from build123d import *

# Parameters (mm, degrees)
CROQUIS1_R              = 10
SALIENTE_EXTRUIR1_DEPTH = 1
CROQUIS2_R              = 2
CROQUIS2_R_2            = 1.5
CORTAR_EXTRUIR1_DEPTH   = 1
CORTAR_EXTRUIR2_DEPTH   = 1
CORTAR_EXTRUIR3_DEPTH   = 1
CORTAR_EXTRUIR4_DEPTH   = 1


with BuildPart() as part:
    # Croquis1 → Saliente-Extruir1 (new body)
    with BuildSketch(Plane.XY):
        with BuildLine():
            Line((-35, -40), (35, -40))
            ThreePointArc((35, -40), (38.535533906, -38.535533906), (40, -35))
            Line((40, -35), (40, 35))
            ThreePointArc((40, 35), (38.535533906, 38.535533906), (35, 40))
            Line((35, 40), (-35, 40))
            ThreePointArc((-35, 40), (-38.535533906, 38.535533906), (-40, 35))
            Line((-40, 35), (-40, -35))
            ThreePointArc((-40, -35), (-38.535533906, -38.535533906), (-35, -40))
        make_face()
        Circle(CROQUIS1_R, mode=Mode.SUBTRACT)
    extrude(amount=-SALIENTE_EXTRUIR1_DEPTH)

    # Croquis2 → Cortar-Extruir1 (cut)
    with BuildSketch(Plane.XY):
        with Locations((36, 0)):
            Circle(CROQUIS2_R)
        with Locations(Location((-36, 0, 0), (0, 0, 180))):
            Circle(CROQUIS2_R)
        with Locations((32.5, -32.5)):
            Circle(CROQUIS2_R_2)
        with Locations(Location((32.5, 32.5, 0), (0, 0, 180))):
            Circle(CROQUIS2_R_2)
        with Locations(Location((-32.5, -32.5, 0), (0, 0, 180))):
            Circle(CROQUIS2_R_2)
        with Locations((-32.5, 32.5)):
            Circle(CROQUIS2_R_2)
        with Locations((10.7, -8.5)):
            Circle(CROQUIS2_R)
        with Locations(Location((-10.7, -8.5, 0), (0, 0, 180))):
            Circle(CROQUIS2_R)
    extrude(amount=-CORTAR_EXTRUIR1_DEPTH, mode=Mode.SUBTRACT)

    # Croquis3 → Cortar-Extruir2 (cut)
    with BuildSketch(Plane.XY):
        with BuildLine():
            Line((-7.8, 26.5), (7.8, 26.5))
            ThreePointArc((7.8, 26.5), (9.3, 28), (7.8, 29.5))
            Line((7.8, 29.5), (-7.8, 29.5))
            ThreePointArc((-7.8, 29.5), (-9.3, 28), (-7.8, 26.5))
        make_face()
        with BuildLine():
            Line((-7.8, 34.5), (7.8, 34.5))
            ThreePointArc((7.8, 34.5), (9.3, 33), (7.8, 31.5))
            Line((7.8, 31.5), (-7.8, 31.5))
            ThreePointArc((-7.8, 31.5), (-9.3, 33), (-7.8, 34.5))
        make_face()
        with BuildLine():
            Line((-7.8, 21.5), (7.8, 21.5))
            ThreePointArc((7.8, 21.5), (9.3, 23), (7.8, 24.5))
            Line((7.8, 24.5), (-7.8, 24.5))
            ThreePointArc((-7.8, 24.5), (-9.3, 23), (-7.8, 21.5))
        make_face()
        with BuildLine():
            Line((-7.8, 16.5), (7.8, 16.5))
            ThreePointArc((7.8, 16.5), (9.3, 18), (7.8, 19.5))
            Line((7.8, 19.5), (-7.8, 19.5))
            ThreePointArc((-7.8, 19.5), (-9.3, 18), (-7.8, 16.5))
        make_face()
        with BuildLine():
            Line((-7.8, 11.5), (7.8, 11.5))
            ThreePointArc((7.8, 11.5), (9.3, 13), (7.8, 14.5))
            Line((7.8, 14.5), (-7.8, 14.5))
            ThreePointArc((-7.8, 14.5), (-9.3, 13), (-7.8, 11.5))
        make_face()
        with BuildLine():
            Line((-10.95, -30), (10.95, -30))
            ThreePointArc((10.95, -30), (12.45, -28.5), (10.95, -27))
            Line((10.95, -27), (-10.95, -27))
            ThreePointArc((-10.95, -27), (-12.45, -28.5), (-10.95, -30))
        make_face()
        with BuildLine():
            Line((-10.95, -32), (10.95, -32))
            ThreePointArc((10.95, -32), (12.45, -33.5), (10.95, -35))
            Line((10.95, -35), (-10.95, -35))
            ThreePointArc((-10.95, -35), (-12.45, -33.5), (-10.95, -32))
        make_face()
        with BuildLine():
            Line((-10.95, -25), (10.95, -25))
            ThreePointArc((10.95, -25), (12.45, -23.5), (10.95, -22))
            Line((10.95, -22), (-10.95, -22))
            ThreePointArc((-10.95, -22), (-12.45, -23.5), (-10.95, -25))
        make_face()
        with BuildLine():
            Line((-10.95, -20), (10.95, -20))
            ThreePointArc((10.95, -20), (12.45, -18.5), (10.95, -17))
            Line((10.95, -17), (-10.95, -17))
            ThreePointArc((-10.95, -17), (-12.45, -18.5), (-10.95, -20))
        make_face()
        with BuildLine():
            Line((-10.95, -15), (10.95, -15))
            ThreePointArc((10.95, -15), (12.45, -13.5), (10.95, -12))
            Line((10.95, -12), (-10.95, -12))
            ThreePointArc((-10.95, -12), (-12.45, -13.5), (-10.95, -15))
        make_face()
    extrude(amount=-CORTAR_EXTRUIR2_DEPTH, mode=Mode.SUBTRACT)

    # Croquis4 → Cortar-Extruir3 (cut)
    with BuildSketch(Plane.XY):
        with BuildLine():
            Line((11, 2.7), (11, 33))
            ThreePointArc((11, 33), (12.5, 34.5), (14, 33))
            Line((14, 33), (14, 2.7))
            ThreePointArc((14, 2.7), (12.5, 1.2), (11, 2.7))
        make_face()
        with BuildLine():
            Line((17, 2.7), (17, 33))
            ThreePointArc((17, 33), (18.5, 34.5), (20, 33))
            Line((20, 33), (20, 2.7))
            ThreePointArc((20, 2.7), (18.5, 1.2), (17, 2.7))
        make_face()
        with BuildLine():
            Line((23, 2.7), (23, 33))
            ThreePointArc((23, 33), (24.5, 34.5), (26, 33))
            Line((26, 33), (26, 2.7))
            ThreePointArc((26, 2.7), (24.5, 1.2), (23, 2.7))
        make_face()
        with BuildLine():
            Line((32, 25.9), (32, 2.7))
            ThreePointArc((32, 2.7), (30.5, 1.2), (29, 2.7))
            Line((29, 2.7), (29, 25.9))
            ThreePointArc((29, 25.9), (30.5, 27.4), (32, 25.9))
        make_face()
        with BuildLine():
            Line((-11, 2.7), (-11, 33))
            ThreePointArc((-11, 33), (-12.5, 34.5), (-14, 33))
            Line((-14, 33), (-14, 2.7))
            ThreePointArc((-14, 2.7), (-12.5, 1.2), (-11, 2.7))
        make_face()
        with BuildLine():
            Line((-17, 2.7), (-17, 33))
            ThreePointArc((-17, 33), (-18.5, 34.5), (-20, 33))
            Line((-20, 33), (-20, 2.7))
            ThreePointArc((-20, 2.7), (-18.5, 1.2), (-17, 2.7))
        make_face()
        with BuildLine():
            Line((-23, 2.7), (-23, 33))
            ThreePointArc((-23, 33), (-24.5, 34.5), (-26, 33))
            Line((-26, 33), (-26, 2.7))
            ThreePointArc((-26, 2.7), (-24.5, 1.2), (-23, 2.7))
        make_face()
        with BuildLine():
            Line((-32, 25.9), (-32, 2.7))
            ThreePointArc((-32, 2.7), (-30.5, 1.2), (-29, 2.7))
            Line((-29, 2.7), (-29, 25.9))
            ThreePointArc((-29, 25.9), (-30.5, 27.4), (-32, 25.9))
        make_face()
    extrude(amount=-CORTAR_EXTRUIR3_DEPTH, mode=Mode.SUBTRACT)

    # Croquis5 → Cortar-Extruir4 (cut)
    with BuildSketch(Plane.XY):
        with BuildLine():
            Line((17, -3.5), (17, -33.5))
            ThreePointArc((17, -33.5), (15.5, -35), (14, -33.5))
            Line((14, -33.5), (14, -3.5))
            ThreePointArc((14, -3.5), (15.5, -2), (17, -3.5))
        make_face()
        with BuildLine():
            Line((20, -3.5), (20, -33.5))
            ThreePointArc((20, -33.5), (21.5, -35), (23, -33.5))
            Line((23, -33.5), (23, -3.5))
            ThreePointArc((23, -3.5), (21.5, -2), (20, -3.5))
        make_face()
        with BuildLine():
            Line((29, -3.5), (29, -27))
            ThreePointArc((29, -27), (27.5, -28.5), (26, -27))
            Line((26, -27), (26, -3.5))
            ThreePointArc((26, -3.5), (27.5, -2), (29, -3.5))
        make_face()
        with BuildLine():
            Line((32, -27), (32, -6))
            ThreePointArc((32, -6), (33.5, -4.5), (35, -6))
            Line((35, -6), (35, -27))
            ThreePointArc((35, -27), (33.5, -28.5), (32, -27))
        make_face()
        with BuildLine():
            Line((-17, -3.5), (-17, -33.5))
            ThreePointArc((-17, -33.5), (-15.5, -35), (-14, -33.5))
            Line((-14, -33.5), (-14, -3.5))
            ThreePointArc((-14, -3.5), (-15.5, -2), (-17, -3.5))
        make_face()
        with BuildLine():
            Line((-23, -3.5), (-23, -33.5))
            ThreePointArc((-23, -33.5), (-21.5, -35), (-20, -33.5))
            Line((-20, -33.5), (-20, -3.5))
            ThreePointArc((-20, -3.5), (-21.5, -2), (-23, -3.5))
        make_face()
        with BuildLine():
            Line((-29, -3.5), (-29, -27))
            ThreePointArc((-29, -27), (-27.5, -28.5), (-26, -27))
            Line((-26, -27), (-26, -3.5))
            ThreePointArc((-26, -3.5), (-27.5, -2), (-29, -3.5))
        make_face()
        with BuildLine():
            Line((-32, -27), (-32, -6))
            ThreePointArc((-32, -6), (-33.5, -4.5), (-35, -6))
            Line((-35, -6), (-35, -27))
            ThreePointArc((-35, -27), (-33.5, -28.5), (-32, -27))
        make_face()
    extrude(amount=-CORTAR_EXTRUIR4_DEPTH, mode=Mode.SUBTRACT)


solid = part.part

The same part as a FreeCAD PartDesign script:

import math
import FreeCAD as App
import Part
import Sketcher

V = App.Vector

doc = App.newDocument("Part")
body = doc.addObject("PartDesign::Body", "Body")

# Sketch on XY plane
sketch1 = body.newObject("Sketcher::SketchObject", "Sketch")
sketch1.AttachmentSupport = (doc.getObject("XY_Plane"), [""])
sketch1.MapMode = "FlatFace"
sketch1.addGeometry(Part.LineSegment(V(-35, -40, 0), V(35, -40, 0)), False)
sketch1.addGeometry(Part.ArcOfCircle(Part.Circle(V(35, -35, 0), V(0, 0, 1), 5), math.radians(-90), math.radians(0)), False)
sketch1.addGeometry(Part.LineSegment(V(40, -35, 0), V(40, 35, 0)), False)
sketch1.addGeometry(Part.ArcOfCircle(Part.Circle(V(35, 35, 0), V(0, 0, 1), 5), math.radians(0), math.radians(90)), False)
sketch1.addGeometry(Part.LineSegment(V(35, 40, 0), V(-35, 40, 0)), False)
sketch1.addGeometry(Part.ArcOfCircle(Part.Circle(V(-35, 35, 0), V(0, 0, 1), 5), math.radians(90), math.radians(180)), False)
sketch1.addGeometry(Part.LineSegment(V(-40, 35, 0), V(-40, -35, 0)), False)
sketch1.addGeometry(Part.ArcOfCircle(Part.Circle(V(-35, -35, 0), V(0, 0, 1), 5), math.radians(180), math.radians(270)), False)
sketch1.addGeometry(Part.Circle(V(0, 0, 0), V(0, 0, 1), 10), False)
sketch1.addConstraint(Sketcher.Constraint("Tangent", 0, 2, 1, 1))
sketch1.addConstraint(Sketcher.Constraint("Tangent", 1, 2, 2, 1))
sketch1.addConstraint(Sketcher.Constraint("Tangent", 2, 2, 3, 1))
sketch1.addConstraint(Sketcher.Constraint("Tangent", 3, 2, 4, 1))
sketch1.addConstraint(Sketcher.Constraint("Tangent", 4, 2, 5, 1))
sketch1.addConstraint(Sketcher.Constraint("Tangent", 5, 2, 6, 1))
sketch1.addConstraint(Sketcher.Constraint("Tangent", 6, 2, 7, 1))
sketch1.addConstraint(Sketcher.Constraint("Tangent", 7, 2, 0, 1))
sketch1.addConstraint(Sketcher.Constraint("Horizontal", 0))
sketch1.addConstraint(Sketcher.Constraint("Vertical", 2))
sketch1.addConstraint(Sketcher.Constraint("Horizontal", 4))
sketch1.addConstraint(Sketcher.Constraint("Vertical", 6))
sketch1.addConstraint(Sketcher.Constraint("Coincident", 8, 3, -1, 1))
sketch1.addConstraint(Sketcher.Constraint("Equal", 1, 3))
sketch1.addConstraint(Sketcher.Constraint("Equal", 3, 5))
sketch1.addConstraint(Sketcher.Constraint("Equal", 5, 7))
sketch1.addConstraint(Sketcher.Constraint("Symmetric", 1, 3, 5, 3, -1, 1))
sketch1.addConstraint(Sketcher.Constraint("Equal", 4, 2))
sketch1.addConstraint(Sketcher.Constraint("Diameter", 8, 20.0))
sketch1.addConstraint(Sketcher.Constraint("Radius", 1, 5.0))
sketch1.addConstraint(Sketcher.Constraint("DistanceX", 0, 1, 0, 2, 70.0))
pad1 = body.newObject("PartDesign::Pad", "Pad")
pad1.Profile = sketch1
pad1.Length = 1
pad1.Reversed = True

# Sketch on XY plane
sketch2 = body.newObject("Sketcher::SketchObject", "Sketch001")
sketch2.AttachmentSupport = (doc.getObject("XY_Plane"), [""])
sketch2.MapMode = "FlatFace"
sketch2.addGeometry(Part.Circle(V(36, 0, 0), V(0, 0, 1), 2), False)
sketch2.addGeometry(Part.Circle(V(-36, 0, 0), V(0, 0, 1), 2), False)
sketch2.addGeometry(Part.Circle(V(32.5, -32.5, 0), V(0, 0, 1), 1.5), False)
sketch2.addGeometry(Part.Circle(V(32.5, 32.5, 0), V(0, 0, 1), 1.5), False)
sketch2.addGeometry(Part.Circle(V(-32.5, -32.5, 0), V(0, 0, 1), 1.5), False)
sketch2.addGeometry(Part.Circle(V(-32.5, 32.5, 0), V(0, 0, 1), 1.5), False)
sketch2.addGeometry(Part.Circle(V(10.7, -8.5, 0), V(0, 0, 1), 2), False)
sketch2.addGeometry(Part.Circle(V(-10.7, -8.5, 0), V(0, 0, 1), 2), False)
sketch2.addConstraint(Sketcher.Constraint("Equal", 0, 1))
sketch2.addConstraint(Sketcher.Constraint("Equal", 2, 3))
sketch2.addConstraint(Sketcher.Constraint("Equal", 3, 4))
sketch2.addConstraint(Sketcher.Constraint("Equal", 4, 5))
sketch2.addConstraint(Sketcher.Constraint("Equal", 1, 6))
sketch2.addConstraint(Sketcher.Constraint("Equal", 6, 7))
sketch2.addConstraint(Sketcher.Constraint("Symmetric", 0, 3, 1, 3, -1, 1))
sketch2.addConstraint(Sketcher.Constraint("Symmetric", 3, 3, 4, 3, -1, 1))
sketch2.addConstraint(Sketcher.Constraint("Symmetric", 2, 3, 5, 3, -1, 1))
sketch2.addConstraint(Sketcher.Constraint("Symmetric", 2, 3, 4, 3, -2))
sketch2.addConstraint(Sketcher.Constraint("Symmetric", 6, 3, 7, 3, -2))
sketch2.addConstraint(Sketcher.Constraint("PointOnObject", 0, 3, -1))
sketch2.addConstraint(Sketcher.Constraint("Diameter", 0, 4.0))
sketch2.addConstraint(Sketcher.Constraint("Diameter", 2, 3.0))
sketch2.addConstraint(Sketcher.Constraint("DistanceX", -1, 1, 0, 3, 36.0))
sketch2.addConstraint(Sketcher.Constraint("DistanceY", 2, 3, 3, 3, 65.0))
sketch2.addConstraint(Sketcher.Constraint("DistanceX", 4, 3, 2, 3, 65.0))
sketch2.addConstraint(Sketcher.Constraint("DistanceY", 2, 3, 6, 3, 24.0))
sketch2.addConstraint(Sketcher.Constraint("DistanceX", -1, 1, 6, 3, 10.7))
pocket1 = body.newObject("PartDesign::Pocket", "Pocket")
pocket1.Profile = sketch2
pocket1.Length = 1

# Sketch on XY plane
sketch3 = body.newObject("Sketcher::SketchObject", "Sketch002")
sketch3.AttachmentSupport = (doc.getObject("XY_Plane"), [""])
sketch3.MapMode = "FlatFace"
sketch3.addGeometry(Part.LineSegment(V(-7.8, 26.5, 0), V(7.8, 26.5, 0)), False)
sketch3.addGeometry(Part.ArcOfCircle(Part.Circle(V(7.8, 28, 0), V(0, 0, 1), 1.5), math.radians(-90), math.radians(90)), False)
sketch3.addGeometry(Part.LineSegment(V(7.8, 29.5, 0), V(-7.8, 29.5, 0)), False)
sketch3.addGeometry(Part.ArcOfCircle(Part.Circle(V(-7.8, 28, 0), V(0, 0, 1), 1.5), math.radians(90), math.radians(270)), False)
sketch3.addGeometry(Part.LineSegment(V(7.8, 34.5, 0), V(-7.8, 34.5, 0)), False)
sketch3.addGeometry(Part.ArcOfCircle(Part.Circle(V(-7.8, 33, 0), V(0, 0, 1), 1.5), math.radians(90), math.radians(270)), False)
sketch3.addGeometry(Part.LineSegment(V(-7.8, 31.5, 0), V(7.8, 31.5, 0)), False)
sketch3.addGeometry(Part.ArcOfCircle(Part.Circle(V(7.8, 33, 0), V(0, 0, 1), 1.5), math.radians(-90), math.radians(90)), False)
sketch3.addGeometry(Part.LineSegment(V(-7.8, 21.5, 0), V(7.8, 21.5, 0)), False)
sketch3.addGeometry(Part.ArcOfCircle(Part.Circle(V(7.8, 23, 0), V(0, 0, 1), 1.5), math.radians(-90), math.radians(90)), False)
sketch3.addGeometry(Part.LineSegment(V(7.8, 24.5, 0), V(-7.8, 24.5, 0)), False)
sketch3.addGeometry(Part.ArcOfCircle(Part.Circle(V(-7.8, 23, 0), V(0, 0, 1), 1.5), math.radians(90), math.radians(270)), False)
sketch3.addGeometry(Part.LineSegment(V(-7.8, 16.5, 0), V(7.8, 16.5, 0)), False)
sketch3.addGeometry(Part.ArcOfCircle(Part.Circle(V(7.8, 18, 0), V(0, 0, 1), 1.5), math.radians(-90), math.radians(90)), False)
sketch3.addGeometry(Part.LineSegment(V(7.8, 19.5, 0), V(-7.8, 19.5, 0)), False)
sketch3.addGeometry(Part.ArcOfCircle(Part.Circle(V(-7.8, 18, 0), V(0, 0, 1), 1.5), math.radians(90), math.radians(270)), False)
sketch3.addGeometry(Part.LineSegment(V(-7.8, 11.5, 0), V(7.8, 11.5, 0)), False)
sketch3.addGeometry(Part.ArcOfCircle(Part.Circle(V(7.8, 13, 0), V(0, 0, 1), 1.5), math.radians(-90), math.radians(90)), False)
sketch3.addGeometry(Part.LineSegment(V(7.8, 14.5, 0), V(-7.8, 14.5, 0)), False)
sketch3.addGeometry(Part.ArcOfCircle(Part.Circle(V(-7.8, 13, 0), V(0, 0, 1), 1.5), math.radians(90), math.radians(270)), False)
sketch3.addGeometry(Part.LineSegment(V(-10.9, -30, 0), V(10.9, -30, 0)), False)
sketch3.addGeometry(Part.ArcOfCircle(Part.Circle(V(10.9, -28.5, 0), V(0, 0, 1), 1.5), math.radians(-90), math.radians(90)), False)
sketch3.addGeometry(Part.LineSegment(V(10.9, -27, 0), V(-10.9, -27, 0)), False)
sketch3.addGeometry(Part.ArcOfCircle(Part.Circle(V(-10.9, -28.5, 0), V(0, 0, 1), 1.5), math.radians(90), math.radians(270)), False)
sketch3.addGeometry(Part.LineSegment(V(10.9, -32, 0), V(-10.9, -32, 0)), False)
sketch3.addGeometry(Part.ArcOfCircle(Part.Circle(V(-10.9, -33.5, 0), V(0, 0, 1), 1.5), math.radians(90), math.radians(270)), False)
sketch3.addGeometry(Part.LineSegment(V(-10.9, -35, 0), V(10.9, -35, 0)), False)
sketch3.addGeometry(Part.ArcOfCircle(Part.Circle(V(10.9, -33.5, 0), V(0, 0, 1), 1.5), math.radians(-90), math.radians(90)), False)
sketch3.addGeometry(Part.LineSegment(V(-10.9, -25, 0), V(10.9, -25, 0)), False)
sketch3.addGeometry(Part.ArcOfCircle(Part.Circle(V(10.9, -23.5, 0), V(0, 0, 1), 1.5), math.radians(-90), math.radians(90)), False)
sketch3.addGeometry(Part.LineSegment(V(10.9, -22, 0), V(-10.9, -22, 0)), False)
sketch3.addGeometry(Part.ArcOfCircle(Part.Circle(V(-10.9, -23.5, 0), V(0, 0, 1), 1.5), math.radians(90), math.radians(270)), False)
sketch3.addGeometry(Part.LineSegment(V(-10.9, -20, 0), V(10.9, -20, 0)), False)
sketch3.addGeometry(Part.ArcOfCircle(Part.Circle(V(10.9, -18.5, 0), V(0, 0, 1), 1.5), math.radians(-90), math.radians(90)), False)
sketch3.addGeometry(Part.LineSegment(V(10.9, -17, 0), V(-10.9, -17, 0)), False)
sketch3.addGeometry(Part.ArcOfCircle(Part.Circle(V(-10.9, -18.5, 0), V(0, 0, 1), 1.5), math.radians(90), math.radians(270)), False)
sketch3.addGeometry(Part.LineSegment(V(-10.9, -15, 0), V(10.9, -15, 0)), False)
sketch3.addGeometry(Part.ArcOfCircle(Part.Circle(V(10.9, -13.5, 0), V(0, 0, 1), 1.5), math.radians(-90), math.radians(90)), False)
sketch3.addGeometry(Part.LineSegment(V(10.9, -12, 0), V(-10.9, -12, 0)), False)
sketch3.addGeometry(Part.ArcOfCircle(Part.Circle(V(-10.9, -13.5, 0), V(0, 0, 1), 1.5), math.radians(90), math.radians(270)), False)
sketch3.addConstraint(Sketcher.Constraint("Tangent", 0, 2, 1, 1))
sketch3.addConstraint(Sketcher.Constraint("Tangent", 1, 2, 2, 1))
sketch3.addConstraint(Sketcher.Constraint("Tangent", 2, 2, 3, 1))
sketch3.addConstraint(Sketcher.Constraint("Tangent", 3, 2, 0, 1))
sketch3.addConstraint(Sketcher.Constraint("Tangent", 4, 2, 5, 1))
sketch3.addConstraint(Sketcher.Constraint("Tangent", 5, 2, 6, 1))
sketch3.addConstraint(Sketcher.Constraint("Tangent", 6, 2, 7, 1))
sketch3.addConstraint(Sketcher.Constraint("Tangent", 7, 2, 4, 1))
sketch3.addConstraint(Sketcher.Constraint("Tangent", 8, 2, 9, 1))
sketch3.addConstraint(Sketcher.Constraint("Tangent", 9, 2, 10, 1))
sketch3.addConstraint(Sketcher.Constraint("Tangent", 10, 2, 11, 1))
sketch3.addConstraint(Sketcher.Constraint("Tangent", 11, 2, 8, 1))
sketch3.addConstraint(Sketcher.Constraint("Tangent", 12, 2, 13, 1))
sketch3.addConstraint(Sketcher.Constraint("Tangent", 13, 2, 14, 1))
sketch3.addConstraint(Sketcher.Constraint("Tangent", 14, 2, 15, 1))
sketch3.addConstraint(Sketcher.Constraint("Tangent", 15, 2, 12, 1))
sketch3.addConstraint(Sketcher.Constraint("Tangent", 16, 2, 17, 1))
sketch3.addConstraint(Sketcher.Constraint("Tangent", 17, 2, 18, 1))
sketch3.addConstraint(Sketcher.Constraint("Tangent", 18, 2, 19, 1))
sketch3.addConstraint(Sketcher.Constraint("Tangent", 19, 2, 16, 1))
sketch3.addConstraint(Sketcher.Constraint("Tangent", 20, 2, 21, 1))
sketch3.addConstraint(Sketcher.Constraint("Tangent", 21, 2, 22, 1))
sketch3.addConstraint(Sketcher.Constraint("Tangent", 22, 2, 23, 1))
sketch3.addConstraint(Sketcher.Constraint("Tangent", 23, 2, 20, 1))
sketch3.addConstraint(Sketcher.Constraint("Tangent", 24, 2, 25, 1))
sketch3.addConstraint(Sketcher.Constraint("Tangent", 25, 2, 26, 1))
sketch3.addConstraint(Sketcher.Constraint("Tangent", 26, 2, 27, 1))
sketch3.addConstraint(Sketcher.Constraint("Tangent", 27, 2, 24, 1))
sketch3.addConstraint(Sketcher.Constraint("Tangent", 28, 2, 29, 1))
sketch3.addConstraint(Sketcher.Constraint("Tangent", 29, 2, 30, 1))
sketch3.addConstraint(Sketcher.Constraint("Tangent", 30, 2, 31, 1))
sketch3.addConstraint(Sketcher.Constraint("Tangent", 31, 2, 28, 1))
sketch3.addConstraint(Sketcher.Constraint("Tangent", 32, 2, 33, 1))
sketch3.addConstraint(Sketcher.Constraint("Tangent", 33, 2, 34, 1))
sketch3.addConstraint(Sketcher.Constraint("Tangent", 34, 2, 35, 1))
sketch3.addConstraint(Sketcher.Constraint("Tangent", 35, 2, 32, 1))
sketch3.addConstraint(Sketcher.Constraint("Tangent", 36, 2, 37, 1))
sketch3.addConstraint(Sketcher.Constraint("Tangent", 37, 2, 38, 1))
sketch3.addConstraint(Sketcher.Constraint("Tangent", 38, 2, 39, 1))
sketch3.addConstraint(Sketcher.Constraint("Tangent", 39, 2, 36, 1))
sketch3.addConstraint(Sketcher.Constraint("Horizontal", 0))
sketch3.addConstraint(Sketcher.Constraint("Horizontal", 2))
sketch3.addConstraint(Sketcher.Constraint("Horizontal", 4))
sketch3.addConstraint(Sketcher.Constraint("Horizontal", 6))
sketch3.addConstraint(Sketcher.Constraint("Horizontal", 8))
sketch3.addConstraint(Sketcher.Constraint("Horizontal", 10))
sketch3.addConstraint(Sketcher.Constraint("Horizontal", 12))
sketch3.addConstraint(Sketcher.Constraint("Horizontal", 14))
sketch3.addConstraint(Sketcher.Constraint("Horizontal", 16))
sketch3.addConstraint(Sketcher.Constraint("Horizontal", 18))
sketch3.addConstraint(Sketcher.Constraint("Horizontal", 20))
sketch3.addConstraint(Sketcher.Constraint("Horizontal", 22))
sketch3.addConstraint(Sketcher.Constraint("Horizontal", 24))
sketch3.addConstraint(Sketcher.Constraint("Horizontal", 26))
sketch3.addConstraint(Sketcher.Constraint("Horizontal", 28))
sketch3.addConstraint(Sketcher.Constraint("Horizontal", 30))
sketch3.addConstraint(Sketcher.Constraint("Horizontal", 32))
sketch3.addConstraint(Sketcher.Constraint("Horizontal", 34))
sketch3.addConstraint(Sketcher.Constraint("Horizontal", 36))
sketch3.addConstraint(Sketcher.Constraint("Horizontal", 38))
sketch3.addConstraint(Sketcher.Constraint("Equal", 3, 5))
sketch3.addConstraint(Sketcher.Constraint("Equal", 7, 9))
sketch3.addConstraint(Sketcher.Constraint("Equal", 11, 13))
sketch3.addConstraint(Sketcher.Constraint("Equal", 15, 17))
sketch3.addConstraint(Sketcher.Constraint("Equal", 19, 21))
sketch3.addConstraint(Sketcher.Constraint("Equal", 23, 25))
sketch3.addConstraint(Sketcher.Constraint("Equal", 27, 29))
sketch3.addConstraint(Sketcher.Constraint("Equal", 31, 33))
sketch3.addConstraint(Sketcher.Constraint("Equal", 35, 37))
sketch3.addConstraint(Sketcher.Constraint("Vertical", 3, 3, 5, 3))
sketch3.addConstraint(Sketcher.Constraint("Vertical", 1, 3, 7, 3))
sketch3.addConstraint(Sketcher.Constraint("Vertical", 7, 3, 9, 3))
sketch3.addConstraint(Sketcher.Constraint("Vertical", 5, 3, 11, 3))
sketch3.addConstraint(Sketcher.Constraint("Vertical", 9, 3, 13, 3))
sketch3.addConstraint(Sketcher.Constraint("Vertical", 11, 3, 15, 3))
sketch3.addConstraint(Sketcher.Constraint("Vertical", 13, 3, 17, 3))
sketch3.addConstraint(Sketcher.Constraint("Vertical", 15, 3, 19, 3))
sketch3.addConstraint(Sketcher.Constraint("Vertical", 23, 3, 25, 3))
sketch3.addConstraint(Sketcher.Constraint("Vertical", 21, 3, 27, 3))
sketch3.addConstraint(Sketcher.Constraint("Vertical", 27, 3, 29, 3))
sketch3.addConstraint(Sketcher.Constraint("Vertical", 25, 3, 31, 3))
sketch3.addConstraint(Sketcher.Constraint("Vertical", 29, 3, 33, 3))
sketch3.addConstraint(Sketcher.Constraint("Vertical", 31, 3, 35, 3))
sketch3.addConstraint(Sketcher.Constraint("Vertical", 33, 3, 37, 3))
sketch3.addConstraint(Sketcher.Constraint("Vertical", 35, 3, 39, 3))
sketch3.addConstraint(Sketcher.Constraint("Radius", 1, 1.5))
sketch3.addConstraint(Sketcher.Constraint("DistanceX", 0, 1, 0, 2, 15.6))
sketch3.addConstraint(Sketcher.Constraint("DistanceX", 20, 1, 20, 2, 21.9))
sketch3.addConstraint(Sketcher.Constraint("DistanceY", -1, 1, 1, 3, 28.0))
sketch3.addConstraint(Sketcher.Constraint("DistanceY", -1, 1, 5, 3, 33.0))
sketch3.addConstraint(Sketcher.Constraint("DistanceY", -1, 1, 9, 3, 23.0))
sketch3.addConstraint(Sketcher.Constraint("DistanceY", -1, 1, 13, 3, 18.0))
sketch3.addConstraint(Sketcher.Constraint("DistanceY", -1, 1, 17, 3, 13.0))
sketch3.addConstraint(Sketcher.Constraint("DistanceY", 20, 2, -1, 1, 30.0))
sketch3.addConstraint(Sketcher.Constraint("DistanceY", 24, 2, -1, 1, 32.0))
sketch3.addConstraint(Sketcher.Constraint("DistanceY", 28, 2, -1, 1, 25.0))
sketch3.addConstraint(Sketcher.Constraint("DistanceY", 32, 2, -1, 1, 20.0))
sketch3.addConstraint(Sketcher.Constraint("DistanceY", 36, 2, -1, 1, 15.0))
sketch3.addConstraint(Sketcher.Constraint("DistanceX", -1, 1, 1, 3, 7.8))
sketch3.addConstraint(Sketcher.Constraint("DistanceX", -1, 1, 21, 3, 10.95))
pocket2 = body.newObject("PartDesign::Pocket", "Pocket001")
pocket2.Profile = sketch3
pocket2.Length = 1

# Sketch on XY plane
sketch4 = body.newObject("Sketcher::SketchObject", "Sketch003")
sketch4.AttachmentSupport = (doc.getObject("XY_Plane"), [""])
sketch4.MapMode = "FlatFace"
sketch4.addGeometry(Part.LineSegment(V(11, 33, 0), V(11, 2.7, 0)), False)
sketch4.addGeometry(Part.ArcOfCircle(Part.Circle(V(12.5, 2.7, 0), V(0, 0, 1), 1.5), math.radians(180), math.radians(360)), False)
sketch4.addGeometry(Part.LineSegment(V(14, 2.7, 0), V(14, 33, 0)), False)
sketch4.addGeometry(Part.ArcOfCircle(Part.Circle(V(12.5, 33, 0), V(0, 0, 1), 1.5), math.radians(0), math.radians(180)), False)
sketch4.addGeometry(Part.LineSegment(V(17, 33, 0), V(17, 2.7, 0)), False)
sketch4.addGeometry(Part.ArcOfCircle(Part.Circle(V(18.5, 2.7, 0), V(0, 0, 1), 1.5), math.radians(180), math.radians(360)), False)
sketch4.addGeometry(Part.LineSegment(V(20, 2.7, 0), V(20, 33, 0)), False)
sketch4.addGeometry(Part.ArcOfCircle(Part.Circle(V(18.5, 33, 0), V(0, 0, 1), 1.5), math.radians(0), math.radians(180)), False)
sketch4.addGeometry(Part.LineSegment(V(23, 33, 0), V(23, 2.7, 0)), False)
sketch4.addGeometry(Part.ArcOfCircle(Part.Circle(V(24.5, 2.7, 0), V(0, 0, 1), 1.5), math.radians(180), math.radians(360)), False)
sketch4.addGeometry(Part.LineSegment(V(26, 2.7, 0), V(26, 33, 0)), False)
sketch4.addGeometry(Part.ArcOfCircle(Part.Circle(V(24.5, 33, 0), V(0, 0, 1), 1.5), math.radians(0), math.radians(180)), False)
sketch4.addGeometry(Part.LineSegment(V(32, 2.7, 0), V(32, 25.9, 0)), False)
sketch4.addGeometry(Part.ArcOfCircle(Part.Circle(V(30.5, 25.9, 0), V(0, 0, 1), 1.5), math.radians(0), math.radians(180)), False)
sketch4.addGeometry(Part.LineSegment(V(29, 25.9, 0), V(29, 2.7, 0)), False)
sketch4.addGeometry(Part.ArcOfCircle(Part.Circle(V(30.5, 2.7, 0), V(0, 0, 1), 1.5), math.radians(180), math.radians(360)), False)
sketch4.addGeometry(Part.LineSegment(V(-11, 2.7, 0), V(-11, 33, 0)), False)
sketch4.addGeometry(Part.ArcOfCircle(Part.Circle(V(-12.5, 33, 0), V(0, 0, 1), 1.5), math.radians(0), math.radians(180)), False)
sketch4.addGeometry(Part.LineSegment(V(-14, 33, 0), V(-14, 2.7, 0)), False)
sketch4.addGeometry(Part.ArcOfCircle(Part.Circle(V(-12.5, 2.7, 0), V(0, 0, 1), 1.5), math.radians(180), math.radians(360)), False)
sketch4.addGeometry(Part.LineSegment(V(-17, 2.7, 0), V(-17, 33, 0)), False)
sketch4.addGeometry(Part.ArcOfCircle(Part.Circle(V(-18.5, 33, 0), V(0, 0, 1), 1.5), math.radians(0), math.radians(180)), False)
sketch4.addGeometry(Part.LineSegment(V(-20, 33, 0), V(-20, 2.7, 0)), False)
sketch4.addGeometry(Part.ArcOfCircle(Part.Circle(V(-18.5, 2.7, 0), V(0, 0, 1), 1.5), math.radians(180), math.radians(360)), False)
sketch4.addGeometry(Part.LineSegment(V(-23, 2.7, 0), V(-23, 33, 0)), False)
sketch4.addGeometry(Part.ArcOfCircle(Part.Circle(V(-24.5, 33, 0), V(0, 0, 1), 1.5), math.radians(0), math.radians(180)), False)
sketch4.addGeometry(Part.LineSegment(V(-26, 33, 0), V(-26, 2.7, 0)), False)
sketch4.addGeometry(Part.ArcOfCircle(Part.Circle(V(-24.5, 2.7, 0), V(0, 0, 1), 1.5), math.radians(180), math.radians(360)), False)
sketch4.addGeometry(Part.LineSegment(V(-32, 25.9, 0), V(-32, 2.7, 0)), False)
sketch4.addGeometry(Part.ArcOfCircle(Part.Circle(V(-30.5, 2.7, 0), V(0, 0, 1), 1.5), math.radians(180), math.radians(360)), False)
sketch4.addGeometry(Part.LineSegment(V(-29, 2.7, 0), V(-29, 25.9, 0)), False)
sketch4.addGeometry(Part.ArcOfCircle(Part.Circle(V(-30.5, 25.9, 0), V(0, 0, 1), 1.5), math.radians(0), math.radians(180)), False)
sketch4.addConstraint(Sketcher.Constraint("Tangent", 0, 2, 1, 1))
sketch4.addConstraint(Sketcher.Constraint("Tangent", 1, 2, 2, 1))
sketch4.addConstraint(Sketcher.Constraint("Tangent", 2, 2, 3, 1))
sketch4.addConstraint(Sketcher.Constraint("Tangent", 3, 2, 0, 1))
sketch4.addConstraint(Sketcher.Constraint("Tangent", 4, 2, 5, 1))
sketch4.addConstraint(Sketcher.Constraint("Tangent", 5, 2, 6, 1))
sketch4.addConstraint(Sketcher.Constraint("Tangent", 6, 2, 7, 1))
sketch4.addConstraint(Sketcher.Constraint("Tangent", 7, 2, 4, 1))
sketch4.addConstraint(Sketcher.Constraint("Tangent", 8, 2, 9, 1))
sketch4.addConstraint(Sketcher.Constraint("Tangent", 9, 2, 10, 1))
sketch4.addConstraint(Sketcher.Constraint("Tangent", 10, 2, 11, 1))
sketch4.addConstraint(Sketcher.Constraint("Tangent", 11, 2, 8, 1))
sketch4.addConstraint(Sketcher.Constraint("Tangent", 12, 2, 13, 1))
sketch4.addConstraint(Sketcher.Constraint("Tangent", 13, 2, 14, 1))
sketch4.addConstraint(Sketcher.Constraint("Tangent", 14, 2, 15, 1))
sketch4.addConstraint(Sketcher.Constraint("Tangent", 15, 2, 12, 1))
sketch4.addConstraint(Sketcher.Constraint("Tangent", 16, 2, 17, 1))
sketch4.addConstraint(Sketcher.Constraint("Tangent", 17, 2, 18, 1))
sketch4.addConstraint(Sketcher.Constraint("Tangent", 18, 2, 19, 1))
sketch4.addConstraint(Sketcher.Constraint("Tangent", 19, 2, 16, 1))
sketch4.addConstraint(Sketcher.Constraint("Tangent", 20, 2, 21, 1))
sketch4.addConstraint(Sketcher.Constraint("Tangent", 21, 2, 22, 1))
sketch4.addConstraint(Sketcher.Constraint("Tangent", 22, 2, 23, 1))
sketch4.addConstraint(Sketcher.Constraint("Tangent", 23, 2, 20, 1))
sketch4.addConstraint(Sketcher.Constraint("Tangent", 24, 2, 25, 1))
sketch4.addConstraint(Sketcher.Constraint("Tangent", 25, 2, 26, 1))
sketch4.addConstraint(Sketcher.Constraint("Tangent", 26, 2, 27, 1))
sketch4.addConstraint(Sketcher.Constraint("Tangent", 27, 2, 24, 1))
sketch4.addConstraint(Sketcher.Constraint("Tangent", 28, 2, 29, 1))
sketch4.addConstraint(Sketcher.Constraint("Tangent", 29, 2, 30, 1))
sketch4.addConstraint(Sketcher.Constraint("Tangent", 30, 2, 31, 1))
sketch4.addConstraint(Sketcher.Constraint("Tangent", 31, 2, 28, 1))
sketch4.addConstraint(Sketcher.Constraint("Vertical", 0))
sketch4.addConstraint(Sketcher.Constraint("Vertical", 2))
sketch4.addConstraint(Sketcher.Constraint("Vertical", 4))
sketch4.addConstraint(Sketcher.Constraint("Vertical", 6))
sketch4.addConstraint(Sketcher.Constraint("Vertical", 8))
sketch4.addConstraint(Sketcher.Constraint("Vertical", 10))
sketch4.addConstraint(Sketcher.Constraint("Vertical", 12))
sketch4.addConstraint(Sketcher.Constraint("Vertical", 14))
sketch4.addConstraint(Sketcher.Constraint("Vertical", 16))
sketch4.addConstraint(Sketcher.Constraint("Vertical", 18))
sketch4.addConstraint(Sketcher.Constraint("Vertical", 20))
sketch4.addConstraint(Sketcher.Constraint("Vertical", 22))
sketch4.addConstraint(Sketcher.Constraint("Vertical", 24))
sketch4.addConstraint(Sketcher.Constraint("Vertical", 26))
sketch4.addConstraint(Sketcher.Constraint("Vertical", 28))
sketch4.addConstraint(Sketcher.Constraint("Vertical", 30))
sketch4.addConstraint(Sketcher.Constraint("Equal", 3, 5))
sketch4.addConstraint(Sketcher.Constraint("Equal", 7, 9))
sketch4.addConstraint(Sketcher.Constraint("Equal", 11, 13))
sketch4.addConstraint(Sketcher.Constraint("Equal", 15, 17))
sketch4.addConstraint(Sketcher.Constraint("Equal", 19, 21))
sketch4.addConstraint(Sketcher.Constraint("Equal", 23, 25))
sketch4.addConstraint(Sketcher.Constraint("Equal", 27, 29))
sketch4.addConstraint(Sketcher.Constraint("Symmetric", 3, 3, 17, 3, -2))
sketch4.addConstraint(Sketcher.Constraint("Symmetric", 7, 3, 21, 3, -2))
sketch4.addConstraint(Sketcher.Constraint("Symmetric", 11, 3, 25, 3, -2))
sketch4.addConstraint(Sketcher.Constraint("Symmetric", 15, 3, 29, 3, -2))
sketch4.addConstraint(Sketcher.Constraint("Horizontal", 1, 3, 5, 3))
sketch4.addConstraint(Sketcher.Constraint("Horizontal", 3, 3, 7, 3))
sketch4.addConstraint(Sketcher.Constraint("Horizontal", 5, 3, 9, 3))
sketch4.addConstraint(Sketcher.Constraint("Horizontal", 7, 3, 11, 3))
sketch4.addConstraint(Sketcher.Constraint("Horizontal", 9, 3, 15, 3))
sketch4.addConstraint(Sketcher.Constraint("Horizontal", 15, 3, 19, 3))
sketch4.addConstraint(Sketcher.Constraint("Horizontal", 19, 3, 23, 3))
sketch4.addConstraint(Sketcher.Constraint("Horizontal", 23, 3, 27, 3))
sketch4.addConstraint(Sketcher.Constraint("Horizontal", 13, 3, 31, 3))
sketch4.addConstraint(Sketcher.Constraint("Radius", 1, 1.5))
sketch4.addConstraint(Sketcher.Constraint("DistanceY", 0, 2, 0, 1, 30.3))
sketch4.addConstraint(Sketcher.Constraint("DistanceY", 12, 1, 12, 2, 23.2))
sketch4.addConstraint(Sketcher.Constraint("DistanceY", -1, 1, 3, 3, 33.0))
sketch4.addConstraint(Sketcher.Constraint("DistanceX", -1, 1, 0, 2, 11.0))
sketch4.addConstraint(Sketcher.Constraint("DistanceX", -1, 1, 4, 2, 17.0))
sketch4.addConstraint(Sketcher.Constraint("DistanceX", -1, 1, 8, 2, 23.0))
sketch4.addConstraint(Sketcher.Constraint("DistanceX", -1, 1, 12, 2, 32.0))
pocket3 = body.newObject("PartDesign::Pocket", "Pocket002")
pocket3.Profile = sketch4
pocket3.Length = 1

# Sketch on XY plane
sketch5 = body.newObject("Sketcher::SketchObject", "Sketch004")
sketch5.AttachmentSupport = (doc.getObject("XY_Plane"), [""])
sketch5.MapMode = "FlatFace"
sketch5.addGeometry(Part.LineSegment(V(17, -33.5, 0), V(17, -3.5, 0)), False)
sketch5.addGeometry(Part.ArcOfCircle(Part.Circle(V(15.5, -3.5, 0), V(0, 0, 1), 1.5), math.radians(0), math.radians(180)), False)
sketch5.addGeometry(Part.LineSegment(V(14, -3.5, 0), V(14, -33.5, 0)), False)
sketch5.addGeometry(Part.ArcOfCircle(Part.Circle(V(15.5, -33.5, 0), V(0, 0, 1), 1.5), math.radians(180), math.radians(360)), False)
sketch5.addGeometry(Part.LineSegment(V(20, -3.5, 0), V(20, -33.5, 0)), False)
sketch5.addGeometry(Part.ArcOfCircle(Part.Circle(V(21.5, -33.5, 0), V(0, 0, 1), 1.5), math.radians(180), math.radians(360)), False)
sketch5.addGeometry(Part.LineSegment(V(23, -33.5, 0), V(23, -3.5, 0)), False)
sketch5.addGeometry(Part.ArcOfCircle(Part.Circle(V(21.5, -3.5, 0), V(0, 0, 1), 1.5), math.radians(0), math.radians(180)), False)
sketch5.addGeometry(Part.LineSegment(V(29, -27, 0), V(29, -3.5, 0)), False)
sketch5.addGeometry(Part.ArcOfCircle(Part.Circle(V(27.5, -3.5, 0), V(0, 0, 1), 1.5), math.radians(0), math.radians(180)), False)
sketch5.addGeometry(Part.LineSegment(V(26, -3.5, 0), V(26, -27, 0)), False)
sketch5.addGeometry(Part.ArcOfCircle(Part.Circle(V(27.5, -27, 0), V(0, 0, 1), 1.5), math.radians(180), math.radians(360)), False)
sketch5.addGeometry(Part.LineSegment(V(32, -6, 0), V(32, -27, 0)), False)
sketch5.addGeometry(Part.ArcOfCircle(Part.Circle(V(33.5, -27, 0), V(0, 0, 1), 1.5), math.radians(180), math.radians(360)), False)
sketch5.addGeometry(Part.LineSegment(V(35, -27, 0), V(35, -6, 0)), False)
sketch5.addGeometry(Part.ArcOfCircle(Part.Circle(V(33.5, -6, 0), V(0, 0, 1), 1.5), math.radians(0), math.radians(180)), False)
sketch5.addGeometry(Part.LineSegment(V(-17, -3.5, 0), V(-17, -33.5, 0)), False)
sketch5.addGeometry(Part.ArcOfCircle(Part.Circle(V(-15.5, -33.5, 0), V(0, 0, 1), 1.5), math.radians(180), math.radians(360)), False)
sketch5.addGeometry(Part.LineSegment(V(-14, -33.5, 0), V(-14, -3.5, 0)), False)
sketch5.addGeometry(Part.ArcOfCircle(Part.Circle(V(-15.5, -3.5, 0), V(0, 0, 1), 1.5), math.radians(0), math.radians(180)), False)
sketch5.addGeometry(Part.LineSegment(V(-23, -3.5, 0), V(-23, -33.5, 0)), False)
sketch5.addGeometry(Part.ArcOfCircle(Part.Circle(V(-21.5, -33.5, 0), V(0, 0, 1), 1.5), math.radians(180), math.radians(360)), False)
sketch5.addGeometry(Part.LineSegment(V(-20, -33.5, 0), V(-20, -3.5, 0)), False)
sketch5.addGeometry(Part.ArcOfCircle(Part.Circle(V(-21.5, -3.5, 0), V(0, 0, 1), 1.5), math.radians(0), math.radians(180)), False)
sketch5.addGeometry(Part.LineSegment(V(-29, -3.5, 0), V(-29, -27, 0)), False)
sketch5.addGeometry(Part.ArcOfCircle(Part.Circle(V(-27.5, -27, 0), V(0, 0, 1), 1.5), math.radians(180), math.radians(360)), False)
sketch5.addGeometry(Part.LineSegment(V(-26, -27, 0), V(-26, -3.5, 0)), False)
sketch5.addGeometry(Part.ArcOfCircle(Part.Circle(V(-27.5, -3.5, 0), V(0, 0, 1), 1.5), math.radians(0), math.radians(180)), False)
sketch5.addGeometry(Part.LineSegment(V(-32, -27, 0), V(-32, -6, 0)), False)
sketch5.addGeometry(Part.ArcOfCircle(Part.Circle(V(-33.5, -6, 0), V(0, 0, 1), 1.5), math.radians(0), math.radians(180)), False)
sketch5.addGeometry(Part.LineSegment(V(-35, -6, 0), V(-35, -27, 0)), False)
sketch5.addGeometry(Part.ArcOfCircle(Part.Circle(V(-33.5, -27, 0), V(0, 0, 1), 1.5), math.radians(180), math.radians(360)), False)
sketch5.addConstraint(Sketcher.Constraint("Tangent", 0, 2, 1, 1))
sketch5.addConstraint(Sketcher.Constraint("Tangent", 1, 2, 2, 1))
sketch5.addConstraint(Sketcher.Constraint("Tangent", 2, 2, 3, 1))
sketch5.addConstraint(Sketcher.Constraint("Tangent", 3, 2, 0, 1))
sketch5.addConstraint(Sketcher.Constraint("Tangent", 4, 2, 5, 1))
sketch5.addConstraint(Sketcher.Constraint("Tangent", 5, 2, 6, 1))
sketch5.addConstraint(Sketcher.Constraint("Tangent", 6, 2, 7, 1))
sketch5.addConstraint(Sketcher.Constraint("Tangent", 7, 2, 4, 1))
sketch5.addConstraint(Sketcher.Constraint("Tangent", 8, 2, 9, 1))
sketch5.addConstraint(Sketcher.Constraint("Tangent", 9, 2, 10, 1))
sketch5.addConstraint(Sketcher.Constraint("Tangent", 10, 2, 11, 1))
sketch5.addConstraint(Sketcher.Constraint("Tangent", 11, 2, 8, 1))
sketch5.addConstraint(Sketcher.Constraint("Tangent", 12, 2, 13, 1))
sketch5.addConstraint(Sketcher.Constraint("Tangent", 13, 2, 14, 1))
sketch5.addConstraint(Sketcher.Constraint("Tangent", 14, 2, 15, 1))
sketch5.addConstraint(Sketcher.Constraint("Tangent", 15, 2, 12, 1))
sketch5.addConstraint(Sketcher.Constraint("Tangent", 16, 2, 17, 1))
sketch5.addConstraint(Sketcher.Constraint("Tangent", 17, 2, 18, 1))
sketch5.addConstraint(Sketcher.Constraint("Tangent", 18, 2, 19, 1))
sketch5.addConstraint(Sketcher.Constraint("Tangent", 19, 2, 16, 1))
sketch5.addConstraint(Sketcher.Constraint("Tangent", 20, 2, 21, 1))
sketch5.addConstraint(Sketcher.Constraint("Tangent", 21, 2, 22, 1))
sketch5.addConstraint(Sketcher.Constraint("Tangent", 22, 2, 23, 1))
sketch5.addConstraint(Sketcher.Constraint("Tangent", 23, 2, 20, 1))
sketch5.addConstraint(Sketcher.Constraint("Tangent", 24, 2, 25, 1))
sketch5.addConstraint(Sketcher.Constraint("Tangent", 25, 2, 26, 1))
sketch5.addConstraint(Sketcher.Constraint("Tangent", 26, 2, 27, 1))
sketch5.addConstraint(Sketcher.Constraint("Tangent", 27, 2, 24, 1))
sketch5.addConstraint(Sketcher.Constraint("Tangent", 28, 2, 29, 1))
sketch5.addConstraint(Sketcher.Constraint("Tangent", 29, 2, 30, 1))
sketch5.addConstraint(Sketcher.Constraint("Tangent", 30, 2, 31, 1))
sketch5.addConstraint(Sketcher.Constraint("Tangent", 31, 2, 28, 1))
sketch5.addConstraint(Sketcher.Constraint("Vertical", 0))
sketch5.addConstraint(Sketcher.Constraint("Vertical", 2))
sketch5.addConstraint(Sketcher.Constraint("Vertical", 4))
sketch5.addConstraint(Sketcher.Constraint("Vertical", 6))
sketch5.addConstraint(Sketcher.Constraint("Vertical", 8))
sketch5.addConstraint(Sketcher.Constraint("Vertical", 10))
sketch5.addConstraint(Sketcher.Constraint("Vertical", 12))
sketch5.addConstraint(Sketcher.Constraint("Vertical", 14))
sketch5.addConstraint(Sketcher.Constraint("Vertical", 16))
sketch5.addConstraint(Sketcher.Constraint("Vertical", 18))
sketch5.addConstraint(Sketcher.Constraint("Vertical", 20))
sketch5.addConstraint(Sketcher.Constraint("Vertical", 22))
sketch5.addConstraint(Sketcher.Constraint("Vertical", 24))
sketch5.addConstraint(Sketcher.Constraint("Vertical", 26))
sketch5.addConstraint(Sketcher.Constraint("Vertical", 28))
sketch5.addConstraint(Sketcher.Constraint("Vertical", 30))
sketch5.addConstraint(Sketcher.Constraint("Equal", 3, 5))
sketch5.addConstraint(Sketcher.Constraint("Equal", 7, 9))
sketch5.addConstraint(Sketcher.Constraint("Equal", 11, 13))
sketch5.addConstraint(Sketcher.Constraint("Equal", 15, 17))
sketch5.addConstraint(Sketcher.Constraint("Equal", 19, 21))
sketch5.addConstraint(Sketcher.Constraint("Equal", 23, 25))
sketch5.addConstraint(Sketcher.Constraint("Equal", 27, 29))
sketch5.addConstraint(Sketcher.Constraint("Symmetric", 3, 3, 17, 3, -2))
sketch5.addConstraint(Sketcher.Constraint("Symmetric", 5, 3, 21, 3, -2))
sketch5.addConstraint(Sketcher.Constraint("Symmetric", 11, 3, 25, 3, -2))
sketch5.addConstraint(Sketcher.Constraint("Symmetric", 15, 3, 29, 3, -2))
sketch5.addConstraint(Sketcher.Constraint("Horizontal", 3, 3, 5, 3))
sketch5.addConstraint(Sketcher.Constraint("Horizontal", 1, 3, 7, 3))
sketch5.addConstraint(Sketcher.Constraint("Horizontal", 7, 3, 9, 3))
sketch5.addConstraint(Sketcher.Constraint("Horizontal", 11, 3, 13, 3))
sketch5.addConstraint(Sketcher.Constraint("Horizontal", 9, 3, 19, 3))
sketch5.addConstraint(Sketcher.Constraint("Horizontal", 19, 3, 23, 3))
sketch5.addConstraint(Sketcher.Constraint("Horizontal", 23, 3, 27, 3))
sketch5.addConstraint(Sketcher.Constraint("Horizontal", 25, 3, 31, 3))
sketch5.addConstraint(Sketcher.Constraint("Radius", 1, 1.5))
sketch5.addConstraint(Sketcher.Constraint("DistanceY", 0, 1, 0, 2, 30.0))
sketch5.addConstraint(Sketcher.Constraint("DistanceY", 12, 2, 12, 1, 21.0))
sketch5.addConstraint(Sketcher.Constraint("DistanceY", 8, 1, 8, 2, 23.5))
sketch5.addConstraint(Sketcher.Constraint("DistanceY", 11, 3, -1, 1, 27.0))
sketch5.addConstraint(Sketcher.Constraint("DistanceX", -1, 1, 0, 2, 17.0))
sketch5.addConstraint(Sketcher.Constraint("DistanceX", -1, 1, 4, 2, 20.0))
sketch5.addConstraint(Sketcher.Constraint("DistanceX", -1, 1, 8, 2, 29.0))
sketch5.addConstraint(Sketcher.Constraint("DistanceX", -1, 1, 12, 2, 32.0))
pocket4 = body.newObject("PartDesign::Pocket", "Pocket003")
pocket4.Profile = sketch5
pocket4.Length = 1

doc.recompute()
